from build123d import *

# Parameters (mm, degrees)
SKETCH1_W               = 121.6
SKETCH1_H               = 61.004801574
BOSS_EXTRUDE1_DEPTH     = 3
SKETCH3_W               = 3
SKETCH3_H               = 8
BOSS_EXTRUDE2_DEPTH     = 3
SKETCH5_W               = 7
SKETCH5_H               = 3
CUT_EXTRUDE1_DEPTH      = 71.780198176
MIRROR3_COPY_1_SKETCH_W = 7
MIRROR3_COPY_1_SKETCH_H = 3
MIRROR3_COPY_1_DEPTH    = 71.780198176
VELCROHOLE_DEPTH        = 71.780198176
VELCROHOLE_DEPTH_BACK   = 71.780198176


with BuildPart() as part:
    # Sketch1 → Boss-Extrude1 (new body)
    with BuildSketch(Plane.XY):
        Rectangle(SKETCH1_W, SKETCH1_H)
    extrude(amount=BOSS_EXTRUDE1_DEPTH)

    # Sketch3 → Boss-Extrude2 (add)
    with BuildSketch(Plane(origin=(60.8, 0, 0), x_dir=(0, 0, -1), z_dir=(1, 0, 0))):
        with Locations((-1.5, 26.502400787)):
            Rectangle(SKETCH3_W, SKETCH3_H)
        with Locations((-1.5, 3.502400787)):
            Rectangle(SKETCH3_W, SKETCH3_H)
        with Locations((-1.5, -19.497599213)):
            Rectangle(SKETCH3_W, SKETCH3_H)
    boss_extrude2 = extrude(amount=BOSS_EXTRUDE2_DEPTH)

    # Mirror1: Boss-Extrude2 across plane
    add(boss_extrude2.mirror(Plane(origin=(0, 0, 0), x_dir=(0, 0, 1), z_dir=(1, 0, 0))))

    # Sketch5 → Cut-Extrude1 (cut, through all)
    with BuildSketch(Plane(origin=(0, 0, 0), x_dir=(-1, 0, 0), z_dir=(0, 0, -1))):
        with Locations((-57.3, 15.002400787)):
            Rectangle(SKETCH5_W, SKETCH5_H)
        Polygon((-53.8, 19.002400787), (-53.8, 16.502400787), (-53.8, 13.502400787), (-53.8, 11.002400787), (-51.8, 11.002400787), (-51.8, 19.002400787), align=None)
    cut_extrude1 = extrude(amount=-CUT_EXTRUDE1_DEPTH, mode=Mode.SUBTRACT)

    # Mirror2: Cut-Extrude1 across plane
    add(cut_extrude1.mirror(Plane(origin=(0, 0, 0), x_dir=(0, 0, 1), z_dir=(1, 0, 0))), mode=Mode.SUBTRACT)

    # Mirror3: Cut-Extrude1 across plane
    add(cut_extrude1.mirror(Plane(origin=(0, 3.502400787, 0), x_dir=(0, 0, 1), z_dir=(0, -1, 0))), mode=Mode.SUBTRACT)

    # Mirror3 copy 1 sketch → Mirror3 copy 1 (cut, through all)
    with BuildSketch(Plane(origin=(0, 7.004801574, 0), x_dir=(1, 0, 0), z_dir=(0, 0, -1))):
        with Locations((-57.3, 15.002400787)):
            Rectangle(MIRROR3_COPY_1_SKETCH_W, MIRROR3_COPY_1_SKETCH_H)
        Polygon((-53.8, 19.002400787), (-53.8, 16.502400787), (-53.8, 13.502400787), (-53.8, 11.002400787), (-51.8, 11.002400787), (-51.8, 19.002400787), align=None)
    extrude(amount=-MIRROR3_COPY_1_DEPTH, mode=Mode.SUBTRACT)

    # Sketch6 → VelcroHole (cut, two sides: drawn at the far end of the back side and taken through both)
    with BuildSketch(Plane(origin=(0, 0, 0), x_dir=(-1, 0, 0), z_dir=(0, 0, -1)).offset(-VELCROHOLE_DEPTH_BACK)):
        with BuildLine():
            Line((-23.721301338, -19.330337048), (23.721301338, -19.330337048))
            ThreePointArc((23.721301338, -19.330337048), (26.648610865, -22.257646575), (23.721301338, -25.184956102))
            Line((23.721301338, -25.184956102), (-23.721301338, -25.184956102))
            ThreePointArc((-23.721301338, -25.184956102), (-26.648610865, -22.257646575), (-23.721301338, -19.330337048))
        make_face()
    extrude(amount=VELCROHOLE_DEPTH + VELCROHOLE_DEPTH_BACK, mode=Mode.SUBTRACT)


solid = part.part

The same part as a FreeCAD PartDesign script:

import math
import FreeCAD as App
import Part
import Sketcher
from FreeCAD import Vector

doc = App.newDocument("Part")
params = doc.addObject("Spreadsheet::Sheet", "Params")
for row, (alias, value) in enumerate([
    ("sketch1_width", "121.6 mm"),
    ("pad1_length", "3 mm"),
    ("sketch2_width", "8 mm"),
    ("sketch2_height", "3 mm"),
    ("pad2_length", "3 mm"),
    ("sketch3_width", "7 mm"),
    ("sketch3_width2", "2 mm"),
    ("sketch3_height", "3 mm"),
    ("sketch3_height2", "8 mm"),
    ("sketch4_width", "7 mm"),
    ("sketch4_width2", "2 mm"),
    ("sketch4_height", "3 mm"),
    ("sketch4_height2", "8 mm"),
], start=1):
    params.set(f"A{row}", alias)
    params.set(f"B{row}", "=" + value)
    params.setAlias(f"B{row}", alias)

body = doc.addObject("PartDesign::Body", "Body")

sketch1 = body.newObject("Sketcher::SketchObject", "Sketch")
sketch1.AttachmentSupport = (doc.getObject("XY_Plane"), [""])
sketch1.MapMode = "FlatFace"
sketch1.addGeometry(Part.LineSegment(Vector(-61, 31, 0), Vector(-61, -31, 0)), False)
sketch1.addGeometry(Part.LineSegment(Vector(-61, -31, 0), Vector(61, -31, 0)), False)
sketch1.addGeometry(Part.LineSegment(Vector(61, -31, 0), Vector(61, 31, 0)), False)
sketch1.addGeometry(Part.LineSegment(Vector(61, 31, 0), Vector(-61, 31, 0)), False)
sketch1.addConstraint(Sketcher.Constraint("Coincident", 0, 2, 1, 1))
sketch1.addConstraint(Sketcher.Constraint("Coincident", 1, 2, 2, 1))
sketch1.addConstraint(Sketcher.Constraint("Coincident", 2, 2, 3, 1))
sketch1.addConstraint(Sketcher.Constraint("Coincident", 3, 2, 0, 1))
sketch1.addConstraint(Sketcher.Constraint("Vertical", 0))
sketch1.addConstraint(Sketcher.Constraint("Horizontal", 1))
sketch1.addConstraint(Sketcher.Constraint("Vertical", 2))
sketch1.addConstraint(Sketcher.Constraint("Horizontal", 3))
sketch1.addConstraint(Sketcher.Constraint("Symmetric", 0, 2, 2, 2, -1, 1))
sketch1.addConstraint(Sketcher.Constraint("DistanceX", 1, 1, 1, 2, 121.6))
sketch1.addConstraint(Sketcher.Constraint("DistanceY", 0, 2, 0, 1, 61.004802))
sketch1.setExpression("Constraints[9]", "Params.sketch1_width")
pad1 = body.newObject("PartDesign::Pad", "Pad")
pad1.Profile = sketch1
pad1.setExpression("Length", "Params.pad1_length")

sketch2 = body.newObject("Sketcher::SketchObject", "Sketch001")
sketch2.AttachmentSupport = (doc.getObject("YZ_Plane"), [""])
sketch2.MapMode = "FlatFace"
sketch2.AttachmentOffset = App.Placement(Vector(0, 0, 60.8), App.Rotation())
sketch2.addGeometry(Part.LineSegment(Vector(30.5, 3, 0), Vector(22.5, 3, 0)), False)
sketch2.addGeometry(Part.LineSegment(Vector(22.5, 3, 0), Vector(22.5, 0, 0)), False)
sketch2.addGeometry(Part.LineSegment(Vector(22.5, 0, 0), Vector(30.5, 0, 0)), False)
sketch2.addGeometry(Part.LineSegment(Vector(30.5, 0, 0), Vector(30.5, 3, 0)), False)
sketch2.addGeometry(Part.LineSegment(Vector(7.5, 3, 0), Vector(-0.5, 3, 0)), False)
sketch2.addGeometry(Part.LineSegment(Vector(-0.5, 3, 0), Vector(-0.5, 0, 0)), False)
sketch2.addGeometry(Part.LineSegment(Vector(-0.5, 0, 0), Vector(7.5, 0, 0)), False)
sketch2.addGeometry(Part.LineSegment(Vector(7.5, 0, 0), Vector(7.5, 3, 0)), False)
sketch2.addGeometry(Part.LineSegment(Vector(-15.5, 3, 0), Vector(-23.5, 3, 0)), False)
sketch2.addGeometry(Part.LineSegment(Vector(-23.5, 3, 0), Vector(-23.5, 0, 0)), False)
sketch2.addGeometry(Part.LineSegment(Vector(-23.5, 0, 0), Vector(-15.5, 0, 0)), False)
sketch2.addGeometry(Part.LineSegment(Vector(-15.5, 0, 0), Vector(-15.5, 3, 0)), False)
sketch2.addConstraint(Sketcher.Constraint("Coincident", 0, 2, 1, 1))
sketch2.addConstraint(Sketcher.Constraint("Coincident", 1, 2, 2, 1))
sketch2.addConstraint(Sketcher.Constraint("Coincident", 2, 2, 3, 1))
sketch2.addConstraint(Sketcher.Constraint("Coincident", 3, 2, 0, 1))
sketch2.addConstraint(Sketcher.Constraint("Coincident", 4, 2, 5, 1))
sketch2.addConstraint(Sketcher.Constraint("Coincident", 5, 2, 6, 1))
sketch2.addConstraint(Sketcher.Constraint("Coincident", 6, 2, 7, 1))
sketch2.addConstraint(Sketcher.Constraint("Coincident", 7, 2, 4, 1))
sketch2.addConstraint(Sketcher.Constraint("Coincident", 8, 2, 9, 1))
sketch2.addConstraint(Sketcher.Constraint("Coincident", 9, 2, 10, 1))
sketch2.addConstraint(Sketcher.Constraint("Coincident", 10, 2, 11, 1))
sketch2.addConstraint(Sketcher.Constraint("Coincident", 11, 2, 8, 1))
sketch2.addConstraint(Sketcher.Constraint("Horizontal", 0))
sketch2.addConstraint(Sketcher.Constraint("Vertical", 1))
sketch2.addConstraint(Sketcher.Constraint("Horizontal", 2))
sketch2.addConstraint(Sketcher.Constraint("Vertical", 3))
sketch2.addConstraint(Sketcher.Constraint("Horizontal", 4))
sketch2.addConstraint(Sketcher.Constraint("Vertical", 5))
sketch2.addConstraint(Sketcher.Constraint("Horizontal", 6))
sketch2.addConstraint(Sketcher.Constraint("Vertical", 7))
sketch2.addConstraint(Sketcher.Constraint("Horizontal", 8))
sketch2.addConstraint(Sketcher.Constraint("Vertical", 9))
sketch2.addConstraint(Sketcher.Constraint("Horizontal", 10))
sketch2.addConstraint(Sketcher.Constraint("Vertical", 11))
sketch2.addConstraint(Sketcher.Constraint("PointOnObject", 1, 2, -1))
sketch2.addConstraint(Sketcher.Constraint("PointOnObject", 5, 2, -1))
sketch2.addConstraint(Sketcher.Constraint("PointOnObject", 9, 2, -1))
sketch2.addConstraint(Sketcher.Constraint("Horizontal", 3, 2, 4, 2))
sketch2.addConstraint(Sketcher.Constraint("Horizontal", 7, 2, 8, 2))
sketch2.addConstraint(Sketcher.Constraint("Equal", 2, 4))
sketch2.addConstraint(Sketcher.Constraint("Equal", 6, 8))
sketch2.addConstraint(Sketcher.Constraint("DistanceX", 0, 2, 0, 1, 8.0))
sketch2.addConstraint(Sketcher.Constraint("DistanceY", 1, 2, 1, 1, 3.0))
sketch2.addConstraint(Sketcher.Constraint("DistanceX", 4, 2, 0, 2, 23.0))
sketch2.addConstraint(Sketcher.Constraint("DistanceX", 8, 2, 4, 2, 23.0))
sketch2.addConstraint(Sketcher.Constraint("DistanceX", -1, 1, 0, 2, 22.502401))
sketch2.setExpression("Constraints[31]", "Params.sketch2_width")
sketch2.setExpression("Constraints[32]", "Params.sketch2_height")
pad2 = body.newObject("PartDesign::Pad", "Pad001")
pad2.Profile = sketch2
pad2.setExpression("Length", "Params.pad2_length")
doc.recompute()

mirrored = body.newObject("PartDesign::Mirrored", "Mirrored")
mirrored.Originals = [pad2]
mirrored.MirrorPlane = (doc.getObject("YZ_Plane"), [""])
body.Tip = mirrored

sketch3 = body.newObject("Sketcher::SketchObject", "Sketch002")
sketch3.AttachmentSupport = (doc.getObject("XY_Plane"), [""])
sketch3.MapMode = "FlatFace"
sketch3.addGeometry(Part.LineSegment(Vector(60.8, 16.5, 0), Vector(60.8, 13.5, 0)), False)
sketch3.addGeometry(Part.LineSegment(Vector(60.8, 13.5, 0), Vector(53.8, 13.5, 0)), False)
sketch3.addGeometry(Part.LineSegment(Vector(53.8, 13.5, 0), Vector(53.8, 11, 0)), False)
sketch3.addGeometry(Part.LineSegment(Vector(53.8, 11, 0), Vector(51.8, 11, 0)), False)
sketch3.addGeometry(Part.LineSegment(Vector(51.8, 11, 0), Vector(51.8, 19, 0)), False)
sketch3.addGeometry(Part.LineSegment(Vector(51.8, 19, 0), Vector(53.8, 19, 0)), False)
sketch3.addGeometry(Part.LineSegment(Vector(53.8, 19, 0), Vector(53.8, 16.5, 0)), False)
sketch3.addGeometry(Part.LineSegment(Vector(53.8, 16.5, 0), Vector(60.8, 16.5, 0)), False)
sketch3.addConstraint(Sketcher.Constraint("Coincident", 0, 2, 1, 1))
sketch3.addConstraint(Sketcher.Constraint("Coincident", 1, 2, 2, 1))
sketch3.addConstraint(Sketcher.Constraint("Coincident", 2, 2, 3, 1))
sketch3.addConstraint(Sketcher.Constraint("Coincident", 3, 2, 4, 1))
sketch3.addConstraint(Sketcher.Constraint("Coincident", 4, 2, 5, 1))
sketch3.addConstraint(Sketcher.Constraint("Coincident", 5, 2, 6, 1))
sketch3.addConstraint(Sketcher.Constraint("Coincident", 6, 2, 7, 1))
sketch3.addConstraint(Sketcher.Constraint("Coincident", 7, 2, 0, 1))
sketch3.addConstraint(Sketcher.Constraint("Vertical", 0))
sketch3.addConstraint(Sketcher.Constraint("Horizontal", 1))
sketch3.addConstraint(Sketcher.Constraint("Vertical", 2))
sketch3.addConstraint(Sketcher.Constraint("Horizontal", 3))
sketch3.addConstraint(Sketcher.Constraint("Vertical", 4))
sketch3.addConstraint(Sketcher.Constraint("Horizontal", 5))
sketch3.addConstraint(Sketcher.Constraint("Vertical", 6))
sketch3.addConstraint(Sketcher.Constraint("Horizontal", 7))
sketch3.addConstraint(Sketcher.Constraint("Vertical", 2, 2, 5, 2))
sketch3.addConstraint(Sketcher.Constraint("Equal", 2, 6))
sketch3.addConstraint(Sketcher.Constraint("DistanceX", 1, 2, 1, 1, 7.0))
sketch3.addConstraint(Sketcher.Constraint("DistanceX", 3, 2, 3, 1, 2.0))
sketch3.addConstraint(Sketcher.Constraint("DistanceY", 0, 2, 0, 1, 3.0))
sketch3.addConstraint(Sketcher.Constraint("DistanceY", 4, 1, 4, 2, 8.0))
sketch3.addConstraint(Sketcher.Constraint("DistanceX", -1, 1, 0, 2, 60.8))
sketch3.addConstraint(Sketcher.Constraint("DistanceY", -1, 1, 0, 2, 13.502401))
sketch3.setExpression("Constraints[18]", "Params.sketch3_width")
sketch3.setExpression("Constraints[19]", "Params.sketch3_width2")
sketch3.setExpression("Constraints[20]", "Params.sketch3_height")
sketch3.setExpression("Constraints[21]", "Params.sketch3_height2")
pocket1 = body.newObject("PartDesign::Pocket", "Pocket")
pocket1.Profile = sketch3
pocket1.Type = "ThroughAll"
pocket1.Reversed = True
doc.recompute()

mirrored2 = body.newObject("PartDesign::Mirrored", "Mirrored001")
mirrored2.Originals = [pocket1]
mirrored2.MirrorPlane = (doc.getObject("YZ_Plane"), [""])
body.Tip = mirrored2
doc.recompute()

datumplane = body.newObject("PartDesign::Plane", "DatumPlane")
datumplane.AttachmentSupport = (doc.getObject("XZ_Plane"), [""])
datumplane.MapMode = "FlatFace"
datumplane.AttachmentOffset = App.Placement(Vector(0, 0, -3.502401), App.Rotation())
mirrored3 = body.newObject("PartDesign::Mirrored", "Mirrored002")
mirrored3.Originals = [pocket1]
mirrored3.MirrorPlane = (datumplane, [""])
body.Tip = mirrored3

sketch4 = body.newObject("Sketcher::SketchObject", "Sketch003")
sketch4.AttachmentSupport = (doc.getObject("XY_Plane"), [""])
sketch4.MapMode = "FlatFace"
sketch4.addGeometry(Part.LineSegment(Vector(-60.8, -9.5, 0), Vector(-60.8, -6.5, 0)), False)
sketch4.addGeometry(Part.LineSegment(Vector(-60.8, -6.5, 0), Vector(-53.8, -6.5, 0)), False)
sketch4.addGeometry(Part.LineSegment(Vector(-53.8, -6.5, 0), Vector(-53.8, -4, 0)), False)
sketch4.addGeometry(Part.LineSegment(Vector(-53.8, -4, 0), Vector(-51.8, -4, 0)), False)
sketch4.addGeometry(Part.LineSegment(Vector(-51.8, -4, 0), Vector(-51.8, -12, 0)), False)
sketch4.addGeometry(Part.LineSegment(Vector(-51.8, -12, 0), Vector(-53.8, -12, 0)), False)
sketch4.addGeometry(Part.LineSegment(Vector(-53.8, -12, 0), Vector(-53.8, -9.5, 0)), False)
sketch4.addGeometry(Part.LineSegment(Vector(-53.8, -9.5, 0), Vector(-60.8, -9.5, 0)), False)
sketch4.addConstraint(Sketcher.Constraint("Coincident", 0, 2, 1, 1))
sketch4.addConstraint(Sketcher.Constraint("Coincident", 1, 2, 2, 1))
sketch4.addConstraint(Sketcher.Constraint("Coincident", 2, 2, 3, 1))
sketch4.addConstraint(Sketcher.Constraint("Coincident", 3, 2, 4, 1))
sketch4.addConstraint(Sketcher.Constraint("Coincident", 4, 2, 5, 1))
sketch4.addConstraint(Sketcher.Constraint("Coincident", 5, 2, 6, 1))
sketch4.addConstraint(Sketcher.Constraint("Coincident", 6, 2, 7, 1))
sketch4.addConstraint(Sketcher.Constraint("Coincident", 7, 2, 0, 1))
sketch4.addConstraint(Sketcher.Constraint("Vertical", 0))
sketch4.addConstraint(Sketcher.Constraint("Horizontal", 1))
sketch4.addConstraint(Sketcher.Constraint("Vertical", 2))
sketch4.addConstraint(Sketcher.Constraint("Horizontal", 3))
sketch4.addConstraint(Sketcher.Constraint("Vertical", 4))
sketch4.addConstraint(Sketcher.Constraint("Horizontal", 5))
sketch4.addConstraint(Sketcher.Constraint("Vertical", 6))
sketch4.addConstraint(Sketcher.Constraint("Horizontal", 7))
sketch4.addConstraint(Sketcher.Constraint("Vertical", 2, 2, 5, 2))
sketch4.addConstraint(Sketcher.Constraint("Equal", 2, 6))
sketch4.addConstraint(Sketcher.Constraint("DistanceX", 1, 1, 1, 2, 7.0))
sketch4.addConstraint(Sketcher.Constraint("DistanceX", 3, 1, 3, 2, 2.0))
sketch4.addConstraint(Sketcher.Constraint("DistanceY", 0, 1, 0, 2, 3.0))
sketch4.addConstraint(Sketcher.Constraint("DistanceY", 4, 2, 4, 1, 8.0))
sketch4.addConstraint(Sketcher.Constraint("DistanceX", 0, 2, -1, 1, 60.8))
sketch4.addConstraint(Sketcher.Constraint("DistanceY", 0, 2, -1, 1, 6.497599))
sketch4.setExpression("Constraints[18]", "Params.sketch4_width")
sketch4.setExpression("Constraints[19]", "Params.sketch4_width2")
sketch4.setExpression("Constraints[20]", "Params.sketch4_height")
sketch4.setExpression("Constraints[21]", "Params.sketch4_height2")
pocket2 = body.newObject("PartDesign::Pocket", "Pocket001")
pocket2.Profile = sketch4
pocket2.Type = "ThroughAll"
pocket2.Reversed = True

sketch5 = body.newObject("Sketcher::SketchObject", "Sketch004")
sketch5.AttachmentSupport = (doc.getObject("XY_Plane"), [""])
sketch5.MapMode = "FlatFace"
sketch5.addGeometry(Part.LineSegment(Vector(-23.7, -19.3, 0), Vector(23.7, -19.3, 0)), False)
sketch5.addGeometry(Part.ArcOfCircle(Part.Circle(Vector(23.7, -22.3, 0), Vector(0, 0, 1), 2.9), math.radians(-90), math.radians(90)), False)
sketch5.addGeometry(Part.LineSegment(Vector(23.7, -25.2, 0), Vector(-23.7, -25.2, 0)), False)
sketch5.addGeometry(Part.ArcOfCircle(Part.Circle(Vector(-23.7, -22.3, 0), Vector(0, 0, 1), 2.9), math.radians(90), math.radians(270)), False)
sketch5.addConstraint(Sketcher.Constraint("Tangent", 0, 2, 1, 2))
sketch5.addConstraint(Sketcher.Constraint("Tangent", 1, 1, 2, 1))
sketch5.addConstraint(Sketcher.Constraint("Tangent", 2, 2, 3, 2))
sketch5.addConstraint(Sketcher.Constraint("Tangent", 3, 1, 0, 1))
sketch5.addConstraint(Sketcher.Constraint("Horizontal", 0))
sketch5.addConstraint(Sketcher.Constraint("Horizontal", 2))
sketch5.addConstraint(Sketcher.Constraint("Radius", 1, 2.92731))
sketch5.addConstraint(Sketcher.Constraint("DistanceX", -1, 1, 1, 3, 23.721301))
sketch5.addConstraint(Sketcher.Constraint("DistanceX", 3, 3, -1, 1, 23.721301))
sketch5.addConstraint(Sketcher.Constraint("DistanceY", 1, 3, -1, 1, 22.257647))
pocket3 = body.newObject("PartDesign::Pocket", "Pocket002")
pocket3.Profile = sketch5
pocket3.Type = "ThroughAll"
pocket3.Midplane = True

doc.recompute()
